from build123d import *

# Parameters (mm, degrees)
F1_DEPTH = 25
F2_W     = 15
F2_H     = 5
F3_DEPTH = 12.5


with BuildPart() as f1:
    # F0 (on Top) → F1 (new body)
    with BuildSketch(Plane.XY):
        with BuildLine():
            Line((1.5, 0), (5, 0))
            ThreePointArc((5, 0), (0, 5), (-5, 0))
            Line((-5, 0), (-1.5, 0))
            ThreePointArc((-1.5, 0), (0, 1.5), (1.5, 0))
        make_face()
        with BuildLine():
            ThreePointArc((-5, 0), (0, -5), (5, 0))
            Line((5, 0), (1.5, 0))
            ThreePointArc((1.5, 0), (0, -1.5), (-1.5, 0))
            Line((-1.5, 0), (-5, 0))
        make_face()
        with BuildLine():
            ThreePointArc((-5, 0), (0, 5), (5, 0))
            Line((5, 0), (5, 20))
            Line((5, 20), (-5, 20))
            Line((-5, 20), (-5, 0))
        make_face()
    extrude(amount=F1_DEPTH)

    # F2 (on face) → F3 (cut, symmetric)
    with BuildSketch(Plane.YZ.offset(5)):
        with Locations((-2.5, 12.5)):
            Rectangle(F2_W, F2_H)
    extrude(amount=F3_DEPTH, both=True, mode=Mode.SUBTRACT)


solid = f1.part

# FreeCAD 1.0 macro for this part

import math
import FreeCAD as App
import Part
import Sketcher

V = App.Vector


def add_polygon(sketch, points):
    """Adds a closed chain of lines whose ends are joined by coincident constraints."""
    first, n = sketch.GeometryCount, len(points)
    for a, b in zip(points, points[1:] + points[:1]):
        sketch.addGeometry(Part.LineSegment(App.Vector(*a, 0), App.Vector(*b, 0)), False)
    for i in range(n):
        sketch.addConstraint(Sketcher.Constraint("Coincident", first + i, 2, first + (i + 1) % n, 1))

doc = App.newDocument("Part")
params = doc.addObject("Spreadsheet::Sheet", "Params")
for row, (alias, value) in enumerate([
    ("sketch1_diameter", "3 mm"),
    ("sketch1_radius", "5 mm"),
    ("sketch1_height", "20 mm"),
    ("pad1_length", "25 mm"),
    ("sketch2_width", "15 mm"),
    ("sketch2_height", "5 mm"),
    ("pocket1_length", "25 mm"),
], start=1):
    params.set(f"A{row}", alias)
    params.set(f"B{row}", "=" + value)
    params.setAlias(f"B{row}", alias)

body = doc.addObject("PartDesign::Body", "Body")

# Sketch on XY plane
sketch1 = doc.addObject("Sketcher::SketchObject", "Sketch")
body.addObject(sketch1)
sketch1.AttachmentSupport = (doc.XY_Plane, [""])
sketch1.MapMode = "FlatFace"
sketch1.addGeometry(Part.ArcOfCircle(Part.Circle(V(0, 0, 0), V(0, 0, 1), 5), math.radians(180), math.radians(360)), False)
sketch1.addGeometry(Part.LineSegment(V(5, 0, 0), V(5, 20, 0)), False)
sketch1.addGeometry(Part.LineSegment(V(5, 20, 0), V(-5, 20, 0)), False)
sketch1.addGeometry(Part.LineSegment(V(-5, 20, 0), V(-5, 0, 0)), False)
sketch1.addGeometry(Part.Circle(V(0, 0, 0), V(0, 0, 1), 1.5), False)
sketch1.addConstraint(Sketcher.Constraint("Tangent", 0, 2, 1, 1))
sketch1.addConstraint(Sketcher.Constraint("Coincident", 1, 2, 2, 1))
sketch1.addConstraint(Sketcher.Constraint("Coincident", 2, 2, 3, 1))
sketch1.addConstraint(Sketcher.Constraint("Tangent", 3, 2, 0, 1))
sketch1.addConstraint(Sketcher.Constraint("Vertical", 1))
sketch1.addConstraint(Sketcher.Constraint("Horizontal", 2))
sketch1.addConstraint(Sketcher.Constraint("Vertical", 3))
sketch1.addConstraint(Sketcher.Constraint("Coincident", 0, 3, -1, 1))
sketch1.addConstraint(Sketcher.Constraint("Coincident", 4, 3, -1, 1))
sketch1.addConstraint(Sketcher.Constraint("Diameter", 4, 3.0))
sketch1.addConstraint(Sketcher.Constraint("Radius", 0, 5.0))
sketch1.addConstraint(Sketcher.Constraint("DistanceY", 1, 1, 1, 2, 20.0))
sketch1.setExpression("Constraints[9]", "Params.sketch1_diameter")
sketch1.setExpression("Constraints[10]", "Params.sketch1_radius")
sketch1.setExpression("Constraints[11]", "Params.sketch1_height")
pad1 = doc.addObject("PartDesign::Pad", "Pad")
body.addObject(pad1)
pad1.Profile = sketch1
pad1.setExpression("Length", "Params.pad1_length")

# Sketch on YZ plane
sketch2 = doc.addObject("Sketcher::SketchObject", "Sketch001")
body.addObject(sketch2)
sketch2.AttachmentSupport = (doc.YZ_Plane, [""])
sketch2.MapMode = "FlatFace"
sketch2.AttachmentOffset = App.Placement(V(0, 0, 5), App.Rotation())
add_polygon(sketch2, [(-10, 15), (-10, 10), (5, 10), (5, 15)])  # lines 0-3
sketch2.addConstraint(Sketcher.Constraint("Vertical", 0))
sketch2.addConstraint(Sketcher.Constraint("Horizontal", 1))
sketch2.addConstraint(Sketcher.Constraint("Vertical", 2))
sketch2.addConstraint(Sketcher.Constraint("Horizontal", 3))
sketch2.addConstraint(Sketcher.Constraint("DistanceX", 1, 1, 1, 2, 15.0))
sketch2.addConstraint(Sketcher.Constraint("DistanceY", 0, 2, 0, 1, 5.0))
sketch2.addConstraint(Sketcher.Constraint("DistanceX", 0, 2, -1, 1, 10.0))
sketch2.addConstraint(Sketcher.Constraint("DistanceY", -1, 1, 0, 2, 10.0))
sketch2.setExpression("Constraints[8]", "Params.sketch2_width")
sketch2.setExpression("Constraints[9]", "Params.sketch2_height")
pocket1 = doc.addObject("PartDesign::Pocket", "Pocket")
body.addObject(pocket1)
pocket1.Profile = sketch2
pocket1.setExpression("Length", "Params.pocket1_length")
pocket1.Midplane = True

doc.recompute()
